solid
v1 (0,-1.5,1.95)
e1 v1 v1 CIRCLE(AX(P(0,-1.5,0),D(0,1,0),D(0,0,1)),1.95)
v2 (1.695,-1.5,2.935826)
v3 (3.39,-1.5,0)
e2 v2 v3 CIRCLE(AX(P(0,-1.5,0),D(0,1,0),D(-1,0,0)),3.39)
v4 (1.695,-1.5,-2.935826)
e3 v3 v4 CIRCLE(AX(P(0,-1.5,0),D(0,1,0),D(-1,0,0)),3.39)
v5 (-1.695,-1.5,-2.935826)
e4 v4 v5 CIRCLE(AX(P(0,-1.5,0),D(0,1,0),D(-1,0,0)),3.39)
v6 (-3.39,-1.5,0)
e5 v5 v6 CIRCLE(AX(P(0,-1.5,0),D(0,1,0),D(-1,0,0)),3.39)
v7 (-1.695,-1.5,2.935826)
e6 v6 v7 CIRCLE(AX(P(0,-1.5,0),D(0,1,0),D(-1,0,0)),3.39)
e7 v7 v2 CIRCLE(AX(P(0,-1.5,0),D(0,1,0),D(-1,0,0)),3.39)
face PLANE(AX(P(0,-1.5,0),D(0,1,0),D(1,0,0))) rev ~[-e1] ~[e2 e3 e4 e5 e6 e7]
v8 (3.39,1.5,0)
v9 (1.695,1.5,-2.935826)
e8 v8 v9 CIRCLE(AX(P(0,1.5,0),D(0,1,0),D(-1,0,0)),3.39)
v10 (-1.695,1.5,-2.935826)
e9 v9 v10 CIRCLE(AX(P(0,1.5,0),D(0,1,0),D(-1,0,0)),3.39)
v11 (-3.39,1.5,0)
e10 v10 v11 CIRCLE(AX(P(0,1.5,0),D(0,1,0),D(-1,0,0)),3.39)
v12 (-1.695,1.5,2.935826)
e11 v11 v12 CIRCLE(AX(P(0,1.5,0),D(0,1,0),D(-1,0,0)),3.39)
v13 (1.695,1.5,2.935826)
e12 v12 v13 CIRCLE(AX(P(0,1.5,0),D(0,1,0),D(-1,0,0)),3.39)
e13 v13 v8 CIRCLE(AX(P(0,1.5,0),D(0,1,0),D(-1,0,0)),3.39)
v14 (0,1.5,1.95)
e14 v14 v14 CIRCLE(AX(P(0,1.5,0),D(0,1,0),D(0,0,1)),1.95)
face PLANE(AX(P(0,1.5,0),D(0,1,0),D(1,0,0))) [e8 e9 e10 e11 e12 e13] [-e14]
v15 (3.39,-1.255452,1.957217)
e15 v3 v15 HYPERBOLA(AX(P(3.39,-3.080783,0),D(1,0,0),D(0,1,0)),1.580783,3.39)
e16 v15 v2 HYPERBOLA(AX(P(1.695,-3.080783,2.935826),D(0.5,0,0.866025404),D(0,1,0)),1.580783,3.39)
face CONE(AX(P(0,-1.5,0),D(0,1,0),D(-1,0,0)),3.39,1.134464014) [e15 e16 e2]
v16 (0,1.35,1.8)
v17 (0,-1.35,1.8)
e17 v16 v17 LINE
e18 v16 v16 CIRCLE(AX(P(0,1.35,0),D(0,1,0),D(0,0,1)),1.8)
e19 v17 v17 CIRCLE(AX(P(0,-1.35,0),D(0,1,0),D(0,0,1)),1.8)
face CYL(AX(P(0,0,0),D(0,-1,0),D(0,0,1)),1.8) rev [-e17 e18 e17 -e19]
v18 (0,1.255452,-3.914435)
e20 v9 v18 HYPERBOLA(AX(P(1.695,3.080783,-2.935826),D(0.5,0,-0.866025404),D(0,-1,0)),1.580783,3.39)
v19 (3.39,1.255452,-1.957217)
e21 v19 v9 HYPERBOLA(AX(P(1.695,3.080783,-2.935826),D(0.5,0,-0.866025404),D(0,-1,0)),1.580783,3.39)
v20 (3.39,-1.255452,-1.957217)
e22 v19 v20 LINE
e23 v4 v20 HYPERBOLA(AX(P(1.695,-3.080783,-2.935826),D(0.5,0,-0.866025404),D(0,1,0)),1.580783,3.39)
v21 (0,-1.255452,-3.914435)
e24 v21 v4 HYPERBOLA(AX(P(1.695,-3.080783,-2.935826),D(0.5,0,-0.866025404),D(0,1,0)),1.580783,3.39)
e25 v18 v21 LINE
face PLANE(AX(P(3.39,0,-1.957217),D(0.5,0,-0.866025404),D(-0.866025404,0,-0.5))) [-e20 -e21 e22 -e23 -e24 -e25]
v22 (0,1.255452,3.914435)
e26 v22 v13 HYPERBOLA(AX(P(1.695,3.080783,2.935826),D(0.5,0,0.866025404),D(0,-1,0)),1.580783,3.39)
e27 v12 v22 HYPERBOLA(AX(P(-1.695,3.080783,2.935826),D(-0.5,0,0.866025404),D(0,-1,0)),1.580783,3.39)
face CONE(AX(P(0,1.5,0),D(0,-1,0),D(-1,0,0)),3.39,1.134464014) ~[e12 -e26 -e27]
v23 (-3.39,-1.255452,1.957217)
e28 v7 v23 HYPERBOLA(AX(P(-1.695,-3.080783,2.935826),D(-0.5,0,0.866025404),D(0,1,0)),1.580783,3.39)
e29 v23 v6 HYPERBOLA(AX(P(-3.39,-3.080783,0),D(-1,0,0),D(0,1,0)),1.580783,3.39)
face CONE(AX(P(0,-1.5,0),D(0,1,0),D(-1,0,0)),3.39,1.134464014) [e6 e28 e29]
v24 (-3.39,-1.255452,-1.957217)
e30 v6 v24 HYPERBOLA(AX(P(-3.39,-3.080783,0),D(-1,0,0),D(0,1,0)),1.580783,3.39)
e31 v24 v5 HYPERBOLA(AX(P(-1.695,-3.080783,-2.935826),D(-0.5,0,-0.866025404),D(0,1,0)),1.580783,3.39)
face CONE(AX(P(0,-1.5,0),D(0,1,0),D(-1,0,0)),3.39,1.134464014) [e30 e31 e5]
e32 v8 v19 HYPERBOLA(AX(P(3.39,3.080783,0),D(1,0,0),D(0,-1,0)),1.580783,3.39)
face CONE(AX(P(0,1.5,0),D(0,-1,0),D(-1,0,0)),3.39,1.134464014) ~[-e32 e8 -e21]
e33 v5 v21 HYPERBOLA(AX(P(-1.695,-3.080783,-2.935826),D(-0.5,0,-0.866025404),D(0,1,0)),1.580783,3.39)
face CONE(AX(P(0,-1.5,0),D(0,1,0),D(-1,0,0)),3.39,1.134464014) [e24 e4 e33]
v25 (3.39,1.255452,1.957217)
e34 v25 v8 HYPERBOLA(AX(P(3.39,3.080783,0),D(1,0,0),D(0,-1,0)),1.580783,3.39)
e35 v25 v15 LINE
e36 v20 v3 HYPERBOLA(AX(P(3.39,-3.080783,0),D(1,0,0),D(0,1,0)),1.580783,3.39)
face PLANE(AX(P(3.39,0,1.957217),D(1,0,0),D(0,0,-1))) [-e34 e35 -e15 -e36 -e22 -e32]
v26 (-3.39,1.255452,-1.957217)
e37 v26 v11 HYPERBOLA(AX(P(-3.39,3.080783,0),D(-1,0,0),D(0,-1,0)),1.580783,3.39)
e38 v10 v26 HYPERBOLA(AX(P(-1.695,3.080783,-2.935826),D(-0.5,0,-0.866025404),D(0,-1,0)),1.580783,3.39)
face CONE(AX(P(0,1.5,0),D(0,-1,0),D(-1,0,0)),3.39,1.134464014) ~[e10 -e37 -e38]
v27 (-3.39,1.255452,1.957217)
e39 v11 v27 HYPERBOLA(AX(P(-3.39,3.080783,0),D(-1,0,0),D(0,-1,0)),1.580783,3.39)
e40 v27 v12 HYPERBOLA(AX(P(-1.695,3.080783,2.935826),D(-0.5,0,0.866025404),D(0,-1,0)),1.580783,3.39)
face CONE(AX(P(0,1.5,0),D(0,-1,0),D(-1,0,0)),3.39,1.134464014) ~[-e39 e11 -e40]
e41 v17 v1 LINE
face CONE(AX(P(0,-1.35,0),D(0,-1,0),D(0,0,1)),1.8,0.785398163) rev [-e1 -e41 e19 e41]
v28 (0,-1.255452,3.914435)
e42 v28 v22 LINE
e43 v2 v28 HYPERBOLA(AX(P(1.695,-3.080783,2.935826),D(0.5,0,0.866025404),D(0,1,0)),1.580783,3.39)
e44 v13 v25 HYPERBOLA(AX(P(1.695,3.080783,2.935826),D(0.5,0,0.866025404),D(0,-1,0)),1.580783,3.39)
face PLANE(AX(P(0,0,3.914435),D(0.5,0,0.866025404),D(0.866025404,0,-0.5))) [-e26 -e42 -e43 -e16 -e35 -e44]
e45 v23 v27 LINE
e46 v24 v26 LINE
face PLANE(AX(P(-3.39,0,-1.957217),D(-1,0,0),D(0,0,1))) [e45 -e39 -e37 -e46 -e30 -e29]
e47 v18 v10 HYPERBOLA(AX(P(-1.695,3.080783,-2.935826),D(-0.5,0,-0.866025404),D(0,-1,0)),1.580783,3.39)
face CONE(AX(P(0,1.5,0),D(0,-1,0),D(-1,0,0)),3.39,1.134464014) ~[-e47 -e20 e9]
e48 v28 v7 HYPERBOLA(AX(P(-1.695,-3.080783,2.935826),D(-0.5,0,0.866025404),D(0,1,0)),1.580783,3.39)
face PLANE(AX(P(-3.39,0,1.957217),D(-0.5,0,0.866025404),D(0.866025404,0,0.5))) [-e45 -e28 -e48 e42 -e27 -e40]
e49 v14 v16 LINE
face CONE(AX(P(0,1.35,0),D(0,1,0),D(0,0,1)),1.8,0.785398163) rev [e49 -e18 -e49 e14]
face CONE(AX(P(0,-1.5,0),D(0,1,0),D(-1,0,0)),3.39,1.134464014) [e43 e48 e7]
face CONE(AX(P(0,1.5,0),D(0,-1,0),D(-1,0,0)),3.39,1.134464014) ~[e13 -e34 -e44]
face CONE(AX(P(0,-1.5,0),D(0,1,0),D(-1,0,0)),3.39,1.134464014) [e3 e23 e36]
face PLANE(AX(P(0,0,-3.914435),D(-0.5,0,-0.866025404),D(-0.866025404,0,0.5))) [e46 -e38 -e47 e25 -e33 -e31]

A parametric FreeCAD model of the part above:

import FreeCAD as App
import Part
import Sketcher

V = App.Vector
Q = App.Units.Quantity


def edges_at(feature, points):
    """Names of the edges that pass closest to the given points."""
    edges = feature.Shape.Edges
    near = lambda p: min(range(len(edges)), key=lambda i: edges[i].distToShape(Part.Vertex(*p))[0])
    return sorted({f"Edge{near(p) + 1}" for p in points})

doc = App.newDocument("Part")
body = doc.addObject("PartDesign::Body", "Body")

sketch1 = body.newObject("Sketcher::SketchObject", "Sketch")
sketch1.AttachmentSupport = (doc.getObject("XZ_Plane"), [""])
sketch1.MapMode = "FlatFace"
sketch1.addGeometry(Part.LineSegment(V(0, -3.9, 0), V(-3.4, -2, 0)), False)
sketch1.addGeometry(Part.LineSegment(V(-3.4, -2, 0), V(-3.4, 2, 0)), False)
sketch1.addGeometry(Part.LineSegment(V(-3.4, 2, 0), V(0, 3.9, 0)), False)
sketch1.addGeometry(Part.LineSegment(V(0, 3.9, 0), V(3.4, 2, 0)), False)
sketch1.addGeometry(Part.LineSegment(V(3.4, 2, 0), V(3.4, -2, 0)), False)
sketch1.addGeometry(Part.LineSegment(V(3.4, -2, 0), V(0, -3.9, 0)), False)
sketch1.addGeometry(Part.Circle(V(0, 0, 0), V(0, 0, 1), 1.8), False)
sketch1.addConstraint(Sketcher.Constraint("Coincident", 0, 2, 1, 1))
sketch1.addConstraint(Sketcher.Constraint("Coincident", 1, 2, 2, 1))
sketch1.addConstraint(Sketcher.Constraint("Coincident", 2, 2, 3, 1))
sketch1.addConstraint(Sketcher.Constraint("Coincident", 3, 2, 4, 1))
sketch1.addConstraint(Sketcher.Constraint("Coincident", 4, 2, 5, 1))
sketch1.addConstraint(Sketcher.Constraint("Coincident", 5, 2, 0, 1))
sketch1.addConstraint(Sketcher.Constraint("Vertical", 1))
sketch1.addConstraint(Sketcher.Constraint("Vertical", 4))
sketch1.addConstraint(Sketcher.Constraint("Coincident", 6, 3, -1, 1))
sketch1.addConstraint(Sketcher.Constraint("Symmetric", 0, 2, 3, 2, -1, 1))
sketch1.addConstraint(Sketcher.Constraint("Symmetric", 2, 2, 5, 2, -1, 1))
sketch1.addConstraint(Sketcher.Constraint("PointOnObject", 2, 2, -2))
sketch1.addConstraint(Sketcher.Constraint("Parallel", 2, 5))
sketch1.addConstraint(Sketcher.Constraint("Horizontal", 1, 2, 3, 2))
sketch1.addConstraint(Sketcher.Constraint("Diameter", 6, Q("3.6 mm")))
sketch1.addConstraint(Sketcher.Constraint("Angle", 0, Q("150 deg")))
sketch1.addConstraint(Sketcher.Constraint("DistanceX", 0, 2, -1, 1, Q("3.39 mm")))
sketch1.addConstraint(Sketcher.Constraint("DistanceY", 1, 1, 1, 2, Q("3.914435 mm")))
pad1 = body.newObject("PartDesign::Pad", "Pad")
pad1.Profile = sketch1
pad1.Length = 3
pad1.Midplane = True
doc.recompute()

chamfer = body.newObject("PartDesign::Chamfer", "Chamfer")
chamfer.Base = (pad1, edges_at(pad1, [(0, -1.5, -1.8), (0, 1.5, -1.8)]))
chamfer.Size = 0.15

sketch2 = body.newObject("Sketcher::SketchObject", "Sketch001")
sketch2.AttachmentSupport = (doc.getObject("XY_Plane"), [""])
sketch2.MapMode = "FlatFace"
sketch2.addGeometry(Part.LineSegment(V(-5, 0.7, 0), V(-3.4, 1.5, 0)), False)
sketch2.addGeometry(Part.LineSegment(V(-3.4, 1.5, 0), V(-5, 1.5, 0)), False)
sketch2.addGeometry(Part.LineSegment(V(-5, 1.5, 0), V(-5, 0.7, 0)), False)
sketch2.addConstraint(Sketcher.Constraint("Coincident", 0, 2, 1, 1))
sketch2.addConstraint(Sketcher.Constraint("Coincident", 1, 2, 2, 1))
sketch2.addConstraint(Sketcher.Constraint("Coincident", 2, 2, 0, 1))
sketch2.addConstraint(Sketcher.Constraint("Horizontal", 1))
sketch2.addConstraint(Sketcher.Constraint("Vertical", 2))
sketch2.addConstraint(Sketcher.Constraint("Angle", 0, Q("25 deg")))
sketch2.addConstraint(Sketcher.Constraint("DistanceX", 1, 2, -1, 1, Q("5 mm")))
sketch2.addConstraint(Sketcher.Constraint("DistanceX", 1, 2, 1, 1, Q("1.61 mm")))
sketch2.addConstraint(Sketcher.Constraint("DistanceY", -1, 1, 0, 2, Q("1.5 mm")))
groove = body.newObject("PartDesign::Groove", "Groove")
groove.Profile = sketch2
groove.ReferenceAxis = (sketch2, ["V_Axis"])
groove.Angle = 360
doc.recompute()

mirrored = body.newObject("PartDesign::Mirrored", "Mirrored")
mirrored.Originals = [groove]
mirrored.MirrorPlane = (doc.getObject("XZ_Plane"), [""])
body.Tip = mirrored

doc.recompute()
